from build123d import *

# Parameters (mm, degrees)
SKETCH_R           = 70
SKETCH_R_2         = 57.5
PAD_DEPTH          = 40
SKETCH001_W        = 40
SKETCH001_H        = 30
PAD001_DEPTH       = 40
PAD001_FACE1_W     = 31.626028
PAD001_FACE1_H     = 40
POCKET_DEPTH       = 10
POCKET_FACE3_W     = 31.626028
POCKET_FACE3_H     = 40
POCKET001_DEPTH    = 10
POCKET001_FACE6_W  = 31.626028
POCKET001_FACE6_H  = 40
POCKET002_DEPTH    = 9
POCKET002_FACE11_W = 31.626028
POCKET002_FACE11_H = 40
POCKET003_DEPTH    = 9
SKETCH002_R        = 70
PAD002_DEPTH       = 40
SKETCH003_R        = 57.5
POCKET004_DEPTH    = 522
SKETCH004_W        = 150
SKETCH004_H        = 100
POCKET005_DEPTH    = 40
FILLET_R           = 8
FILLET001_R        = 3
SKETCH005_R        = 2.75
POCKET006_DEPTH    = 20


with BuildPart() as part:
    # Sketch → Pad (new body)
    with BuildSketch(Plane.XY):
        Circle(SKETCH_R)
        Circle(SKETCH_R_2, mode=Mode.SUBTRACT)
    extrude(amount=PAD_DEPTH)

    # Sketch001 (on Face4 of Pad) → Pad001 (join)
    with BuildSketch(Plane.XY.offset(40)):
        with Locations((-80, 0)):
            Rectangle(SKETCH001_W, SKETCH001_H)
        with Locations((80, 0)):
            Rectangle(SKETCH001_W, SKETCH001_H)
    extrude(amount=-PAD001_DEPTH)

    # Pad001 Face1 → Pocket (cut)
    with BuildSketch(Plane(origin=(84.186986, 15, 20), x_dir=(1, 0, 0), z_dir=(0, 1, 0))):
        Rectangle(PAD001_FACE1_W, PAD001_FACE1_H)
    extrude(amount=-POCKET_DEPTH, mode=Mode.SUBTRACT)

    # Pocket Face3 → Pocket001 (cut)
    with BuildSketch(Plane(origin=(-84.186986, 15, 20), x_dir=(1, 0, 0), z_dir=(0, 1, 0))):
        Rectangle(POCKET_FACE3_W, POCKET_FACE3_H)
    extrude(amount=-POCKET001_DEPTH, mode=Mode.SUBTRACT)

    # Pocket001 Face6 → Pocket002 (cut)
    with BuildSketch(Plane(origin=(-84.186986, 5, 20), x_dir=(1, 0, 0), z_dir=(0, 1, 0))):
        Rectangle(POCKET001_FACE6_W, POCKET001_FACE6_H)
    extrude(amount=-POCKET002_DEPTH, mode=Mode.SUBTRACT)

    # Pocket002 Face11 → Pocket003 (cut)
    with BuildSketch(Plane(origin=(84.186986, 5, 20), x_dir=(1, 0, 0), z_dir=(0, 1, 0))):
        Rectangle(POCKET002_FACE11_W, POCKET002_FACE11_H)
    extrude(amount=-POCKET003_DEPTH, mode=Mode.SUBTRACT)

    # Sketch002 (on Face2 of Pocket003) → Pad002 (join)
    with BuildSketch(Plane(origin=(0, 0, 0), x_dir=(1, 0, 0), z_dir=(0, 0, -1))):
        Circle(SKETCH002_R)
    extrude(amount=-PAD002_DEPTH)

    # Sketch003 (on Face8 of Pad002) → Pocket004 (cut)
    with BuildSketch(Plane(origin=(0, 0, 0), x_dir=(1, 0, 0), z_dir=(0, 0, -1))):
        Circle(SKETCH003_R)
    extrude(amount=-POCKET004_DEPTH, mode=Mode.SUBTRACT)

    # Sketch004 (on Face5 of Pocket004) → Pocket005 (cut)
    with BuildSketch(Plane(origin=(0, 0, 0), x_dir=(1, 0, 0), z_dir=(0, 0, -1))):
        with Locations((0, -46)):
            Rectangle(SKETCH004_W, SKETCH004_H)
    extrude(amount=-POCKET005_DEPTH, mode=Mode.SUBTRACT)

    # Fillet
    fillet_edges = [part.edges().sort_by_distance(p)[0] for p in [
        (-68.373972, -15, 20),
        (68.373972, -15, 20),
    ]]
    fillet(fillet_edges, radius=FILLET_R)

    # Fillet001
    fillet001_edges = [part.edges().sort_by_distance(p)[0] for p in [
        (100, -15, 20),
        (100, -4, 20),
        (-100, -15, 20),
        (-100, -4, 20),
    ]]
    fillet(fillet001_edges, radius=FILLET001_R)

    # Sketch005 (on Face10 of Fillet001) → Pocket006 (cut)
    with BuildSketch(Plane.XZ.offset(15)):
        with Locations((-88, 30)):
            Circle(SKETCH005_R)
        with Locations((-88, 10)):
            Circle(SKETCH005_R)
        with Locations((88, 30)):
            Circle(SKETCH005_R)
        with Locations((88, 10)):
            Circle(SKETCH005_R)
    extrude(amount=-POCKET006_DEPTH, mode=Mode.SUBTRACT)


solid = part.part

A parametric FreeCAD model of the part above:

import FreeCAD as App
import Part
import Sketcher

V = App.Vector
Q = App.Units.Quantity


def edges_at(feature, points):
    """Names of the edges that pass closest to the given points."""
    edges = feature.Shape.Edges
    near = lambda p: min(range(len(edges)), key=lambda i: edges[i].distToShape(Part.Vertex(*p))[0])
    return sorted({f"Edge{near(p) + 1}" for p in points})


def add_polygon(sketch, points):
    """Adds a closed chain of lines whose ends are joined by coincident constraints."""
    first, n = sketch.GeometryCount, len(points)
    for a, b in zip(points, points[1:] + points[:1]):
        sketch.addGeometry(Part.LineSegment(App.Vector(*a, 0), App.Vector(*b, 0)), False)
    for i in range(n):
        sketch.addConstraint(Sketcher.Constraint("Coincident", first + i, 2, first + (i + 1) % n, 1))

doc = App.newDocument("Part")
params = doc.addObject("Spreadsheet::Sheet", "Params")
for row, (alias, value) in enumerate([
    ("sketch1_diameter", "140 mm"),
    ("sketch1_diameter2", "115 mm"),
    ("pad1_length", "40 mm"),
    ("sketch2_width", "40 mm"),
    ("sketch2_height", "30 mm"),
    ("pad2_length", "40 mm"),
    ("sketch3_height", "40 mm"),
    ("pocket1_length", "10 mm"),
    ("sketch4_height", "40 mm"),
    ("pocket2_length", "10 mm"),
    ("sketch5_height", "40 mm"),
    ("pocket3_length", "9 mm"),
    ("sketch6_height", "40 mm"),
    ("pocket4_length", "9 mm"),
    ("sketch7_diameter", "140 mm"),
    ("pad3_length", "40 mm"),
    ("sketch8_diameter", "115 mm"),
    ("pocket5_length", "522 mm"),
    ("sketch9_width", "150 mm"),
    ("sketch9_height", "100 mm"),
    ("pocket6_length", "40 mm"),
    ("fillet_radius", "8 mm"),
    ("fillet2_radius", "3 mm"),
    ("sketch10_diameter", "5.5 mm"),
    ("pocket7_length", "20 mm"),
], start=1):
    params.set(f"A{row}", alias)
    params.set(f"B{row}", "=" + value)
    params.setAlias(f"B{row}", alias)

body = doc.addObject("PartDesign::Body", "Body")

# Sketch on XY plane
sketch1 = body.newObject("Sketcher::SketchObject", "Sketch")
sketch1.AttachmentSupport = (doc.getObject("XY_Plane"), [""])
sketch1.MapMode = "FlatFace"
sketch1.addGeometry([
    Part.Circle(V(0, 0, 0), V(0, 0, 1), 70),
    Part.Circle(V(0, 0, 0), V(0, 0, 1), 58),
], False)
sketch1.addConstraint([
    Sketcher.Constraint("Coincident", 0, 3, -1, 1),
    Sketcher.Constraint("Coincident", 1, 3, -1, 1),
    Sketcher.Constraint("Diameter", 0, Q("140 mm")),
    Sketcher.Constraint("Diameter", 1, Q("115 mm")),
])
sketch1.setExpression("Constraints[2]", "Params.sketch1_diameter")
sketch1.setExpression("Constraints[3]", "Params.sketch1_diameter2")
pad1 = body.newObject("PartDesign::Pad", "Pad")
pad1.Profile = sketch1
pad1.setExpression("Length", "Params.pad1_length")

# Sketch on XY plane
sketch2 = body.newObject("Sketcher::SketchObject", "Sketch001")
sketch2.AttachmentSupport = (doc.getObject("XY_Plane"), [""])
sketch2.MapMode = "FlatFace"
sketch2.AttachmentOffset = App.Placement(V(0, 0, 40), App.Rotation())
add_polygon(sketch2, [(-100, 15), (-100, -15), (-60, -15), (-60, 15)])  # lines 0-3
add_polygon(sketch2, [(60, 15), (60, -15), (100, -15), (100, 15)])  # lines 4-7
sketch2.addConstraint([
    Sketcher.Constraint("Vertical", 0),
    Sketcher.Constraint("Horizontal", 1),
    Sketcher.Constraint("Vertical", 2),
    Sketcher.Constraint("Horizontal", 3),
    Sketcher.Constraint("Vertical", 4),
    Sketcher.Constraint("Horizontal", 5),
    Sketcher.Constraint("Vertical", 6),
    Sketcher.Constraint("Horizontal", 7),
    Sketcher.Constraint("Symmetric", 2, 2, 4, 2, -1, 1),
    Sketcher.Constraint("Symmetric", 0, 2, 6, 2, -1, 1),
    Sketcher.Constraint("Horizontal", 1, 2, 4, 2),
    Sketcher.Constraint("DistanceX", 1, 1, 1, 2, Q("40 mm")),
    Sketcher.Constraint("DistanceY", 0, 2, 0, 1, Q("30 mm")),
    Sketcher.Constraint("DistanceX", 0, 2, -1, 1, Q("100 mm")),
])
sketch2.setExpression("Constraints[19]", "Params.sketch2_width")
sketch2.setExpression("Constraints[20]", "Params.sketch2_height")
pad2 = body.newObject("PartDesign::Pad", "Pad001")
pad2.Profile = sketch2
pad2.setExpression("Length", "Params.pad2_length")
pad2.Reversed = True

# Sketch on XZ plane
sketch3 = body.newObject("Sketcher::SketchObject", "Sketch002")
sketch3.AttachmentSupport = (doc.getObject("XZ_Plane"), [""])
sketch3.MapMode = "FlatFace"
sketch3.AttachmentOffset = App.Placement(V(0, 0, -15), App.Rotation())
add_polygon(sketch3, [(68, 0), (68, 40), (100, 40), (100, 0)])  # lines 0-3
sketch3.addConstraint([
    Sketcher.Constraint("Vertical", 0),
    Sketcher.Constraint("Horizontal", 1),
    Sketcher.Constraint("Vertical", 2),
    Sketcher.Constraint("Horizontal", 3),
    Sketcher.Constraint("PointOnObject", 2, 2, -1),
    Sketcher.Constraint("DistanceY", 0, 1, 0, 2, Q("40 mm")),
    Sketcher.Constraint("DistanceX", -1, 1, 1, 2, Q("100 mm")),
    Sketcher.Constraint("DistanceX", 1, 1, 1, 2, Q("31.626028 mm")),
])
sketch3.setExpression("Constraints[9]", "Params.sketch3_height")
pocket1 = body.newObject("PartDesign::Pocket", "Pocket")
pocket1.Profile = sketch3
pocket1.setExpression("Length", "Params.pocket1_length")
pocket1.Reversed = True

# Sketch on XZ plane
sketch4 = body.newObject("Sketcher::SketchObject", "Sketch003")
sketch4.AttachmentSupport = (doc.getObject("XZ_Plane"), [""])
sketch4.MapMode = "FlatFace"
sketch4.AttachmentOffset = App.Placement(V(0, 0, -15), App.Rotation())
add_polygon(sketch4, [(-100, 0), (-100, 40), (-68, 40), (-68, 0)])  # lines 0-3
sketch4.addConstraint([
    Sketcher.Constraint("Vertical", 0),
    Sketcher.Constraint("Horizontal", 1),
    Sketcher.Constraint("Vertical", 2),
    Sketcher.Constraint("Horizontal", 3),
    Sketcher.Constraint("PointOnObject", 2, 2, -1),
    Sketcher.Constraint("DistanceY", 0, 1, 0, 2, Q("40 mm")),
    Sketcher.Constraint("DistanceX", 0, 2, -1, 1, Q("100 mm")),
    Sketcher.Constraint("DistanceX", 1, 1, 1, 2, Q("31.626028 mm")),
])
sketch4.setExpression("Constraints[9]", "Params.sketch4_height")
pocket2 = body.newObject("PartDesign::Pocket", "Pocket001")
pocket2.Profile = sketch4
pocket2.setExpression("Length", "Params.pocket2_length")
pocket2.Reversed = True

# Sketch on XZ plane
sketch5 = body.newObject("Sketcher::SketchObject", "Sketch004")
sketch5.AttachmentSupport = (doc.getObject("XZ_Plane"), [""])
sketch5.MapMode = "FlatFace"
sketch5.AttachmentOffset = App.Placement(V(0, 0, -5), App.Rotation())
add_polygon(sketch5, [(-100, 0), (-100, 40), (-68, 40), (-68, 0)])  # lines 0-3
sketch5.addConstraint([
    Sketcher.Constraint("Vertical", 0),
    Sketcher.Constraint("Horizontal", 1),
    Sketcher.Constraint("Vertical", 2),
    Sketcher.Constraint("Horizontal", 3),
    Sketcher.Constraint("PointOnObject", 2, 2, -1),
    Sketcher.Constraint("DistanceY", 0, 1, 0, 2, Q("40 mm")),
    Sketcher.Constraint("DistanceX", 0, 2, -1, 1, Q("100 mm")),
    Sketcher.Constraint("DistanceX", 1, 1, 1, 2, Q("31.626028 mm")),
])
sketch5.setExpression("Constraints[9]", "Params.sketch5_height")
pocket3 = body.newObject("PartDesign::Pocket", "Pocket002")
pocket3.Profile = sketch5
pocket3.setExpression("Length", "Params.pocket3_length")
pocket3.Reversed = True

# Sketch on XZ plane
sketch6 = body.newObject("Sketcher::SketchObject", "Sketch005")
sketch6.AttachmentSupport = (doc.getObject("XZ_Plane"), [""])
sketch6.MapMode = "FlatFace"
sketch6.AttachmentOffset = App.Placement(V(0, 0, -5), App.Rotation())
add_polygon(sketch6, [(68, 0), (68, 40), (100, 40), (100, 0)])  # lines 0-3
sketch6.addConstraint([
    Sketcher.Constraint("Vertical", 0),
    Sketcher.Constraint("Horizontal", 1),
    Sketcher.Constraint("Vertical", 2),
    Sketcher.Constraint("Horizontal", 3),
    Sketcher.Constraint("PointOnObject", 2, 2, -1),
    Sketcher.Constraint("DistanceY", 0, 1, 0, 2, Q("40 mm")),
    Sketcher.Constraint("DistanceX", -1, 1, 1, 2, Q("100 mm")),
    Sketcher.Constraint("DistanceX", 1, 1, 1, 2, Q("31.626028 mm")),
])
sketch6.setExpression("Constraints[9]", "Params.sketch6_height")
pocket4 = body.newObject("PartDesign::Pocket", "Pocket003")
pocket4.Profile = sketch6
pocket4.setExpression("Length", "Params.pocket4_length")
pocket4.Reversed = True

# Sketch on XY plane
sketch7 = body.newObject("Sketcher::SketchObject", "Sketch006")
sketch7.AttachmentSupport = (doc.getObject("XY_Plane"), [""])
sketch7.MapMode = "FlatFace"
sketch7.addGeometry(Part.Circle(V(0, 0, 0), V(0, 0, 1), 70), False)
sketch7.addConstraint([
    Sketcher.Constraint("Coincident", 0, 3, -1, 1),
    Sketcher.Constraint("Diameter", 0, Q("140 mm")),
])
sketch7.setExpression("Constraints[1]", "Params.sketch7_diameter")
pad3 = body.newObject("PartDesign::Pad", "Pad002")
pad3.Profile = sketch7
pad3.setExpression("Length", "Params.pad3_length")

# Sketch on XY plane
sketch8 = body.newObject("Sketcher::SketchObject", "Sketch007")
sketch8.AttachmentSupport = (doc.getObject("XY_Plane"), [""])
sketch8.MapMode = "FlatFace"
sketch8.addGeometry(Part.Circle(V(0, 0, 0), V(0, 0, 1), 58), False)
sketch8.addConstraint([
    Sketcher.Constraint("Coincident", 0, 3, -1, 1),
    Sketcher.Constraint("Diameter", 0, Q("115 mm")),
])
sketch8.setExpression("Constraints[1]", "Params.sketch8_diameter")
pocket5 = body.newObject("PartDesign::Pocket", "Pocket004")
pocket5.Profile = sketch8
pocket5.setExpression("Length", "Params.pocket5_length")
pocket5.Reversed = True

# Sketch on XY plane
sketch9 = body.newObject("Sketcher::SketchObject", "Sketch008")
sketch9.AttachmentSupport = (doc.getObject("XY_Plane"), [""])
sketch9.MapMode = "FlatFace"
add_polygon(sketch9, [(-75, -4), (-75, 96), (75, 96), (75, -4)])  # lines 0-3
sketch9.addConstraint([
    Sketcher.Constraint("Vertical", 0),
    Sketcher.Constraint("Horizontal", 1),
    Sketcher.Constraint("Vertical", 2),
    Sketcher.Constraint("Horizontal", 3),
    Sketcher.Constraint("DistanceX", 1, 1, 1, 2, Q("150 mm")),
    Sketcher.Constraint("DistanceY", 0, 1, 0, 2, Q("100 mm")),
    Sketcher.Constraint("DistanceX", 0, 2, -1, 1, Q("75 mm")),
    Sketcher.Constraint("DistanceY", -1, 1, 0, 2, Q("96 mm")),
])
sketch9.setExpression("Constraints[8]", "Params.sketch9_width")
sketch9.setExpression("Constraints[9]", "Params.sketch9_height")
pocket6 = body.newObject("PartDesign::Pocket", "Pocket005")
pocket6.Profile = sketch9
pocket6.setExpression("Length", "Params.pocket6_length")
pocket6.Reversed = True
doc.recompute()

fillet = body.newObject("PartDesign::Fillet", "Fillet")
fillet.Base = (pocket6, edges_at(pocket6, [(-68.374, -15, 20), (68.374, -15, 20)]))
fillet.setExpression("Radius", "Params.fillet_radius")
doc.recompute()

fillet2 = body.newObject("PartDesign::Fillet", "Fillet001")
fillet2.Base = (fillet, edges_at(fillet, [
    (100, -15, 20),
    (100, -4, 20),
    (-100, -15, 20),
    (-100, -4, 20),
]))
fillet2.setExpression("Radius", "Params.fillet2_radius")

# Sketch on XZ plane
sketch10 = body.newObject("Sketcher::SketchObject", "Sketch009")
sketch10.AttachmentSupport = (doc.getObject("XZ_Plane"), [""])
sketch10.MapMode = "FlatFace"
sketch10.AttachmentOffset = App.Placement(V(0, 0, 15), App.Rotation())
sketch10.addGeometry([
    Part.Circle(V(-88, 30, 0), V(0, 0, 1), 2.8),
    Part.Circle(V(-88, 10, 0), V(0, 0, 1), 2.8),
    Part.Circle(V(88, 30, 0), V(0, 0, 1), 2.8),
    Part.Circle(V(88, 10, 0), V(0, 0, 1), 2.8),
], False)
sketch10.addConstraint([
    Sketcher.Constraint("Equal", 0, 1),
    Sketcher.Constraint("Equal", 1, 2),
    Sketcher.Constraint("Equal", 2, 3),
    Sketcher.Constraint("Symmetric", 0, 3, 2, 3, -2),
    Sketcher.Constraint("Symmetric", 1, 3, 3, 3, -2),
    Sketcher.Constraint("Vertical", 0, 3, 1, 3),
    Sketcher.Constraint("Diameter", 0, Q("5.5 mm")),
    Sketcher.Constraint("DistanceX", 0, 3, -1, 1, Q("88 mm")),
    Sketcher.Constraint("DistanceY", -1, 1, 0, 3, Q("30 mm")),
    Sketcher.Constraint("DistanceY", -1, 1, 1, 3, Q("10 mm")),
])
sketch10.setExpression("Constraints[6]", "Params.sketch10_diameter")
pocket7 = body.newObject("PartDesign::Pocket", "Pocket006")
pocket7.Profile = sketch10
pocket7.setExpression("Length", "Params.pocket7_length")

doc.recompute()
